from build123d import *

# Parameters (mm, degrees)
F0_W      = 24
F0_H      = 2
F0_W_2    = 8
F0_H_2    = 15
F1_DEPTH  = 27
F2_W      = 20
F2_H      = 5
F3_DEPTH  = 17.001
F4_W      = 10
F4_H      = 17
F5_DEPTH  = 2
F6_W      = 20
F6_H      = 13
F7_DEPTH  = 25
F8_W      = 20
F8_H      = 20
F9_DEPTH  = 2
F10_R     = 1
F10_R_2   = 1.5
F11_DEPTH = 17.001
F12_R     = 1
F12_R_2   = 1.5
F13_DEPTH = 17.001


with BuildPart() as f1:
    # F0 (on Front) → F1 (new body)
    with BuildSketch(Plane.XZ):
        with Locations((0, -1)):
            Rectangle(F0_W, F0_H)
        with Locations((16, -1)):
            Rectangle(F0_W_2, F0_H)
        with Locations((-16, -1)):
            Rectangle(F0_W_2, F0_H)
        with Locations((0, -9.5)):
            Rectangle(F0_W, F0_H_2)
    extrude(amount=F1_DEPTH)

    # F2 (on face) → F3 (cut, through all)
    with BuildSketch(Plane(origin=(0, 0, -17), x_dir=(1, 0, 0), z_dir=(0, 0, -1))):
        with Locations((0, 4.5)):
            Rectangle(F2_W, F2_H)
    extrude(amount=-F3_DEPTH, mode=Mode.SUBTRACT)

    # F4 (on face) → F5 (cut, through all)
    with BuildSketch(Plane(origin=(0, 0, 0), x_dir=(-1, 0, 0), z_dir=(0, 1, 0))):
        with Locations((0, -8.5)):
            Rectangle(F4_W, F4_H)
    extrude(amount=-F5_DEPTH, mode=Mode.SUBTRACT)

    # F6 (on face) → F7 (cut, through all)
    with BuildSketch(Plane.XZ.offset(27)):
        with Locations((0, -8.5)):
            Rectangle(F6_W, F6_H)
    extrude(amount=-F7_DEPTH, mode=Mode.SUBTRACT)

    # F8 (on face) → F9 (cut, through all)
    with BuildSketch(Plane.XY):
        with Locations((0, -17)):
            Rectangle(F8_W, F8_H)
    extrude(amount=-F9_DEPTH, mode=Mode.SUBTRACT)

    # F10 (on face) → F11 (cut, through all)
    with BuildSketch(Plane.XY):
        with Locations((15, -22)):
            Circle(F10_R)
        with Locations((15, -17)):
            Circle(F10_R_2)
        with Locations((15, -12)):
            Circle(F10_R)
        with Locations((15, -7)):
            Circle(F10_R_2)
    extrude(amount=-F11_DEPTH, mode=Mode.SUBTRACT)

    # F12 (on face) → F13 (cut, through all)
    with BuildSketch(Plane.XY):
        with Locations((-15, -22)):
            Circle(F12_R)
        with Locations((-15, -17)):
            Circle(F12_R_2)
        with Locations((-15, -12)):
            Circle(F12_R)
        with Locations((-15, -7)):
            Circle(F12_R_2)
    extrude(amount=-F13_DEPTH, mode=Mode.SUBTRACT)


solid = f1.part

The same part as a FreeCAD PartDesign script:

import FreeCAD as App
import Part
import Sketcher

V = App.Vector

doc = App.newDocument("Part")
body = doc.addObject("PartDesign::Body", "Body")

# Sketch on XZ plane
sketch1 = body.newObject("Sketcher::SketchObject", "Sketch")
sketch1.AttachmentSupport = (doc.getObject("XZ_Plane"), [""])
sketch1.MapMode = "FlatFace"
sketch1.addGeometry(Part.LineSegment(V(20, -2, 0), V(20, 0, 0)), False)
sketch1.addGeometry(Part.LineSegment(V(20, 0, 0), V(-20, 0, 0)), False)
sketch1.addGeometry(Part.LineSegment(V(-20, 0, 0), V(-20, -2, 0)), False)
sketch1.addGeometry(Part.LineSegment(V(-20, -2, 0), V(-12, -2, 0)), False)
sketch1.addGeometry(Part.LineSegment(V(-12, -2, 0), V(-12, -17, 0)), False)
sketch1.addGeometry(Part.LineSegment(V(-12, -17, 0), V(12, -17, 0)), False)
sketch1.addGeometry(Part.LineSegment(V(12, -17, 0), V(12, -2, 0)), False)
sketch1.addGeometry(Part.LineSegment(V(12, -2, 0), V(20, -2, 0)), False)
sketch1.addConstraint(Sketcher.Constraint("Coincident", 0, 2, 1, 1))
sketch1.addConstraint(Sketcher.Constraint("Coincident", 1, 2, 2, 1))
sketch1.addConstraint(Sketcher.Constraint("Coincident", 2, 2, 3, 1))
sketch1.addConstraint(Sketcher.Constraint("Coincident", 3, 2, 4, 1))
sketch1.addConstraint(Sketcher.Constraint("Coincident", 4, 2, 5, 1))
sketch1.addConstraint(Sketcher.Constraint("Coincident", 5, 2, 6, 1))
sketch1.addConstraint(Sketcher.Constraint("Coincident", 6, 2, 7, 1))
sketch1.addConstraint(Sketcher.Constraint("Coincident", 7, 2, 0, 1))
sketch1.addConstraint(Sketcher.Constraint("Vertical", 0))
sketch1.addConstraint(Sketcher.Constraint("Horizontal", 1))
sketch1.addConstraint(Sketcher.Constraint("Vertical", 2))
sketch1.addConstraint(Sketcher.Constraint("Horizontal", 3))
sketch1.addConstraint(Sketcher.Constraint("Vertical", 4))
sketch1.addConstraint(Sketcher.Constraint("Horizontal", 5))
sketch1.addConstraint(Sketcher.Constraint("Vertical", 6))
sketch1.addConstraint(Sketcher.Constraint("Horizontal", 7))
sketch1.addConstraint(Sketcher.Constraint("Symmetric", 0, 2, 1, 2, -1, 1))
sketch1.addConstraint(Sketcher.Constraint("Symmetric", 3, 2, 6, 2, -2))
sketch1.addConstraint(Sketcher.Constraint("DistanceX", 1, 2, 1, 1, 40.0))
sketch1.addConstraint(Sketcher.Constraint("DistanceX", 3, 1, 3, 2, 8.0))
sketch1.addConstraint(Sketcher.Constraint("DistanceY", 0, 1, 0, 2, 2.0))
sketch1.addConstraint(Sketcher.Constraint("DistanceY", 4, 2, 4, 1, 15.0))
pad1 = body.newObject("PartDesign::Pad", "Pad")
pad1.Profile = sketch1
pad1.Length = 27

# Sketch on XY plane
sketch2 = body.newObject("Sketcher::SketchObject", "Sketch001")
sketch2.AttachmentSupport = (doc.getObject("XY_Plane"), [""])
sketch2.MapMode = "FlatFace"
sketch2.AttachmentOffset = App.Placement(V(0, 0, -17), App.Rotation())
sketch2.addGeometry(Part.LineSegment(V(-10, -7, 0), V(-10, -2, 0)), False)
sketch2.addGeometry(Part.LineSegment(V(-10, -2, 0), V(10, -2, 0)), False)
sketch2.addGeometry(Part.LineSegment(V(10, -2, 0), V(10, -7, 0)), False)
sketch2.addGeometry(Part.LineSegment(V(10, -7, 0), V(-10, -7, 0)), False)
sketch2.addConstraint(Sketcher.Constraint("Coincident", 0, 2, 1, 1))
sketch2.addConstraint(Sketcher.Constraint("Coincident", 1, 2, 2, 1))
sketch2.addConstraint(Sketcher.Constraint("Coincident", 2, 2, 3, 1))
sketch2.addConstraint(Sketcher.Constraint("Coincident", 3, 2, 0, 1))
sketch2.addConstraint(Sketcher.Constraint("Vertical", 0))
sketch2.addConstraint(Sketcher.Constraint("Horizontal", 1))
sketch2.addConstraint(Sketcher.Constraint("Vertical", 2))
sketch2.addConstraint(Sketcher.Constraint("Horizontal", 3))
sketch2.addConstraint(Sketcher.Constraint("DistanceX", 1, 1, 1, 2, 20.0))
sketch2.addConstraint(Sketcher.Constraint("DistanceY", 0, 1, 0, 2, 5.0))
sketch2.addConstraint(Sketcher.Constraint("DistanceX", 0, 2, -1, 1, 10.0))
sketch2.addConstraint(Sketcher.Constraint("DistanceY", 0, 2, -1, 1, 2.0))
pocket1 = body.newObject("PartDesign::Pocket", "Pocket")
pocket1.Profile = sketch2
pocket1.Type = "ThroughAll"
pocket1.Reversed = True

# Sketch on XZ plane
sketch3 = body.newObject("Sketcher::SketchObject", "Sketch002")
sketch3.AttachmentSupport = (doc.getObject("XZ_Plane"), [""])
sketch3.MapMode = "FlatFace"
sketch3.addGeometry(Part.LineSegment(V(5, 0, 0), V(5, -17, 0)), False)
sketch3.addGeometry(Part.LineSegment(V(5, -17, 0), V(-5, -17, 0)), False)
sketch3.addGeometry(Part.LineSegment(V(-5, -17, 0), V(-5, 0, 0)), False)
sketch3.addGeometry(Part.LineSegment(V(-5, 0, 0), V(5, 0, 0)), False)
sketch3.addConstraint(Sketcher.Constraint("Coincident", 0, 2, 1, 1))
sketch3.addConstraint(Sketcher.Constraint("Coincident", 1, 2, 2, 1))
sketch3.addConstraint(Sketcher.Constraint("Coincident", 2, 2, 3, 1))
sketch3.addConstraint(Sketcher.Constraint("Coincident", 3, 2, 0, 1))
sketch3.addConstraint(Sketcher.Constraint("Vertical", 0))
sketch3.addConstraint(Sketcher.Constraint("Horizontal", 1))
sketch3.addConstraint(Sketcher.Constraint("Vertical", 2))
sketch3.addConstraint(Sketcher.Constraint("Horizontal", 3))
sketch3.addConstraint(Sketcher.Constraint("Symmetric", 2, 2, 3, 2, -1, 1))
sketch3.addConstraint(Sketcher.Constraint("DistanceX", 1, 2, 1, 1, 10.0))
sketch3.addConstraint(Sketcher.Constraint("DistanceY", 0, 2, 0, 1, 17.0))
pocket2 = body.newObject("PartDesign::Pocket", "Pocket001")
pocket2.Profile = sketch3
pocket2.Length = 2
pocket2.Reversed = True

# Sketch on XZ plane
sketch4 = body.newObject("Sketcher::SketchObject", "Sketch003")
sketch4.AttachmentSupport = (doc.getObject("XZ_Plane"), [""])
sketch4.MapMode = "FlatFace"
sketch4.AttachmentOffset = App.Placement(V(0, 0, 27), App.Rotation())
sketch4.addGeometry(Part.LineSegment(V(-10, -2, 0), V(-10, -15, 0)), False)
sketch4.addGeometry(Part.LineSegment(V(-10, -15, 0), V(10, -15, 0)), False)
sketch4.addGeometry(Part.LineSegment(V(10, -15, 0), V(10, -2, 0)), False)
sketch4.addGeometry(Part.LineSegment(V(10, -2, 0), V(-10, -2, 0)), False)
sketch4.addConstraint(Sketcher.Constraint("Coincident", 0, 2, 1, 1))
sketch4.addConstraint(Sketcher.Constraint("Coincident", 1, 2, 2, 1))
sketch4.addConstraint(Sketcher.Constraint("Coincident", 2, 2, 3, 1))
sketch4.addConstraint(Sketcher.Constraint("Coincident", 3, 2, 0, 1))
sketch4.addConstraint(Sketcher.Constraint("Vertical", 0))
sketch4.addConstraint(Sketcher.Constraint("Horizontal", 1))
sketch4.addConstraint(Sketcher.Constraint("Vertical", 2))
sketch4.addConstraint(Sketcher.Constraint("Horizontal", 3))
sketch4.addConstraint(Sketcher.Constraint("DistanceX", 1, 1, 1, 2, 20.0))
sketch4.addConstraint(Sketcher.Constraint("DistanceY", 0, 2, 0, 1, 13.0))
sketch4.addConstraint(Sketcher.Constraint("DistanceX", 0, 2, -1, 1, 10.0))
sketch4.addConstraint(Sketcher.Constraint("DistanceY", 0, 2, -1, 1, 15.0))
pocket3 = body.newObject("PartDesign::Pocket", "Pocket002")
pocket3.Profile = sketch4
pocket3.Length = 25

# Sketch on XY plane
sketch5 = body.newObject("Sketcher::SketchObject", "Sketch004")
sketch5.AttachmentSupport = (doc.getObject("XY_Plane"), [""])
sketch5.MapMode = "FlatFace"
sketch5.addGeometry(Part.LineSegment(V(-10, -7, 0), V(-10, -27, 0)), False)
sketch5.addGeometry(Part.LineSegment(V(-10, -27, 0), V(10, -27, 0)), False)
sketch5.addGeometry(Part.LineSegment(V(10, -27, 0), V(10, -7, 0)), False)
sketch5.addGeometry(Part.LineSegment(V(10, -7, 0), V(-10, -7, 0)), False)
sketch5.addConstraint(Sketcher.Constraint("Coincident", 0, 2, 1, 1))
sketch5.addConstraint(Sketcher.Constraint("Coincident", 1, 2, 2, 1))
sketch5.addConstraint(Sketcher.Constraint("Coincident", 2, 2, 3, 1))
sketch5.addConstraint(Sketcher.Constraint("Coincident", 3, 2, 0, 1))
sketch5.addConstraint(Sketcher.Constraint("Vertical", 0))
sketch5.addConstraint(Sketcher.Constraint("Horizontal", 1))
sketch5.addConstraint(Sketcher.Constraint("Vertical", 2))
sketch5.addConstraint(Sketcher.Constraint("Horizontal", 3))
sketch5.addConstraint(Sketcher.Constraint("Equal", 3, 0))
sketch5.addConstraint(Sketcher.Constraint("DistanceX", 1, 1, 1, 2, 20.0))
sketch5.addConstraint(Sketcher.Constraint("DistanceX", 0, 2, -1, 1, 10.0))
sketch5.addConstraint(Sketcher.Constraint("DistanceY", 0, 2, -1, 1, 27.0))
pocket4 = body.newObject("PartDesign::Pocket", "Pocket003")
pocket4.Profile = sketch5
pocket4.Length = 2

# Sketch on XY plane
sketch6 = body.newObject("Sketcher::SketchObject", "Sketch005")
sketch6.AttachmentSupport = (doc.getObject("XY_Plane"), [""])
sketch6.MapMode = "FlatFace"
sketch6.addGeometry(Part.Circle(V(15, -22, 0), V(0, 0, 1), 1), False)
sketch6.addGeometry(Part.Circle(V(15, -17, 0), V(0, 0, 1), 1.5), False)
sketch6.addGeometry(Part.Circle(V(15, -12, 0), V(0, 0, 1), 1), False)
sketch6.addGeometry(Part.Circle(V(15, -7, 0), V(0, 0, 1), 1.5), False)
sketch6.addConstraint(Sketcher.Constraint("Equal", 0, 2))
sketch6.addConstraint(Sketcher.Constraint("Equal", 1, 3))
sketch6.addConstraint(Sketcher.Constraint("Vertical", 0, 3, 1, 3))
sketch6.addConstraint(Sketcher.Constraint("Vertical", 1, 3, 2, 3))
sketch6.addConstraint(Sketcher.Constraint("Vertical", 2, 3, 3, 3))
sketch6.addConstraint(Sketcher.Constraint("Diameter", 0, 2.0))
sketch6.addConstraint(Sketcher.Constraint("Diameter", 1, 3.0))
sketch6.addConstraint(Sketcher.Constraint("DistanceX", -1, 1, 0, 3, 15.0))
sketch6.addConstraint(Sketcher.Constraint("DistanceY", 0, 3, -1, 1, 22.0))
sketch6.addConstraint(Sketcher.Constraint("DistanceY", 1, 3, -1, 1, 17.0))
sketch6.addConstraint(Sketcher.Constraint("DistanceY", 2, 3, -1, 1, 12.0))
sketch6.addConstraint(Sketcher.Constraint("DistanceY", 3, 3, -1, 1, 7.0))
pocket5 = body.newObject("PartDesign::Pocket", "Pocket004")
pocket5.Profile = sketch6
pocket5.Type = "ThroughAll"

# Sketch on XY plane
sketch7 = body.newObject("Sketcher::SketchObject", "Sketch006")
sketch7.AttachmentSupport = (doc.getObject("XY_Plane"), [""])
sketch7.MapMode = "FlatFace"
sketch7.addGeometry(Part.Circle(V(-15, -22, 0), V(0, 0, 1), 1), False)
sketch7.addGeometry(Part.Circle(V(-15, -17, 0), V(0, 0, 1), 1.5), False)
sketch7.addGeometry(Part.Circle(V(-15, -12, 0), V(0, 0, 1), 1), False)
sketch7.addGeometry(Part.Circle(V(-15, -7, 0), V(0, 0, 1), 1.5), False)
sketch7.addConstraint(Sketcher.Constraint("Equal", 0, 2))
sketch7.addConstraint(Sketcher.Constraint("Equal", 1, 3))
sketch7.addConstraint(Sketcher.Constraint("Vertical", 0, 3, 1, 3))
sketch7.addConstraint(Sketcher.Constraint("Vertical", 1, 3, 2, 3))
sketch7.addConstraint(Sketcher.Constraint("Vertical", 2, 3, 3, 3))
sketch7.addConstraint(Sketcher.Constraint("Diameter", 0, 2.0))
sketch7.addConstraint(Sketcher.Constraint("Diameter", 1, 3.0))
sketch7.addConstraint(Sketcher.Constraint("DistanceX", 0, 3, -1, 1, 15.0))
sketch7.addConstraint(Sketcher.Constraint("DistanceY", 0, 3, -1, 1, 22.0))
sketch7.addConstraint(Sketcher.Constraint("DistanceY", 1, 3, -1, 1, 17.0))
sketch7.addConstraint(Sketcher.Constraint("DistanceY", 2, 3, -1, 1, 12.0))
sketch7.addConstraint(Sketcher.Constraint("DistanceY", 3, 3, -1, 1, 7.0))
pocket6 = body.newObject("PartDesign::Pocket", "Pocket005")
pocket6.Profile = sketch7
pocket6.Type = "ThroughAll"

doc.recompute()
